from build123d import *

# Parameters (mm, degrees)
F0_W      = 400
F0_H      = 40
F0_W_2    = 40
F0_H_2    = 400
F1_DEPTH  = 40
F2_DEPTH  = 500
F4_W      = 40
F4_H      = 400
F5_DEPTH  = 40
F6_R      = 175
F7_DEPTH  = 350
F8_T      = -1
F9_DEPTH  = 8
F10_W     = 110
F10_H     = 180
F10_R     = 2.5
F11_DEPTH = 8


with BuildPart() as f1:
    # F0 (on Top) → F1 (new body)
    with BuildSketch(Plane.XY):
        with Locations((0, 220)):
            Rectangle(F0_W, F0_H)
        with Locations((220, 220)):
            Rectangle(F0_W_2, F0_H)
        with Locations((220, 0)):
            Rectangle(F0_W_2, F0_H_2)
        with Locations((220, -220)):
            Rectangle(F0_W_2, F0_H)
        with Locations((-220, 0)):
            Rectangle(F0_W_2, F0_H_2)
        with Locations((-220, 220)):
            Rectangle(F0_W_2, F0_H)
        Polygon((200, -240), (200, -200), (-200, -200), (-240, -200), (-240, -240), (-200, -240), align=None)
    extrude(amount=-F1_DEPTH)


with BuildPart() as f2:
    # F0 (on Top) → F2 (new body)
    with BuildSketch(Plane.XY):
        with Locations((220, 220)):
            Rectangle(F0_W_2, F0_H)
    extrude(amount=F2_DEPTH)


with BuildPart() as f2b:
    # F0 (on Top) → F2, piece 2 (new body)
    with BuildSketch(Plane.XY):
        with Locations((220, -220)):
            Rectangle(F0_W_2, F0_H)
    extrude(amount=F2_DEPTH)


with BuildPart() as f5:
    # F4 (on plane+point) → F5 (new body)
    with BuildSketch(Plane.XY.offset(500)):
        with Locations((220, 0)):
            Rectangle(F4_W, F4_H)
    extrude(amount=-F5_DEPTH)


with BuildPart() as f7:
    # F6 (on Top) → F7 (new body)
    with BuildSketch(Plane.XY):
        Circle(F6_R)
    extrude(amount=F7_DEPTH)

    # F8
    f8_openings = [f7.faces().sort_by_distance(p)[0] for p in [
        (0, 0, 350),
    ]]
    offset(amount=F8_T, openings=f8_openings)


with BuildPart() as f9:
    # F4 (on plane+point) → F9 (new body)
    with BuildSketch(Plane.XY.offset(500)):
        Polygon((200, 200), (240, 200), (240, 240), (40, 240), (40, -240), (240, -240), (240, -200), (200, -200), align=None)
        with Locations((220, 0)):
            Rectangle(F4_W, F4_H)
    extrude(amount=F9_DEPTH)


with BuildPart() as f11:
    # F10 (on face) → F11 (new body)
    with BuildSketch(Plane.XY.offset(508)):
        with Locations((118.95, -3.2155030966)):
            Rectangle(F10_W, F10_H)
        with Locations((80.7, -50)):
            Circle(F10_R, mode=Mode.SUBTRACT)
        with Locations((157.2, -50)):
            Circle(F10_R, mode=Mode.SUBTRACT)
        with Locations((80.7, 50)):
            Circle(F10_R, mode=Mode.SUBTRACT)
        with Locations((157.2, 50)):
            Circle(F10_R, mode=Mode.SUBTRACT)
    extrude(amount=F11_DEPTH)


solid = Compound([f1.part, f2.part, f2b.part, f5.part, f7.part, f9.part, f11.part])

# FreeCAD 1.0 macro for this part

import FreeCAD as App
import Part
import Sketcher
from FreeCAD import Vector
Q = App.Units.Quantity


def faces_at(feature, points):
    """Names of the faces that lie closest to the given points."""
    faces = feature.Shape.Faces
    near = lambda p: min(range(len(faces)), key=lambda i: faces[i].distToShape(Part.Vertex(*p))[0])
    return sorted({f"Face{near(p) + 1}" for p in points})

doc = App.newDocument("Part")
body = doc.addObject("PartDesign::Body", "Body")

# Sketch on XY plane
sketch1 = body.newObject("Sketcher::SketchObject", "Sketch")
sketch1.AttachmentSupport = (doc.getObject("XY_Plane"), [""])
sketch1.MapMode = "FlatFace"
sketch1.addGeometry(Part.LineSegment(Vector(240, -240, 0), Vector(240, 240, 0)), False)
sketch1.addGeometry(Part.LineSegment(Vector(240, 240, 0), Vector(-240, 240, 0)), False)
sketch1.addGeometry(Part.LineSegment(Vector(-240, 240, 0), Vector(-240, -240, 0)), False)
sketch1.addGeometry(Part.LineSegment(Vector(-240, -240, 0), Vector(240, -240, 0)), False)
sketch1.addGeometry(Part.LineSegment(Vector(-200, 200, 0), Vector(200, 200, 0)), False)
sketch1.addGeometry(Part.LineSegment(Vector(200, 200, 0), Vector(200, -200, 0)), False)
sketch1.addGeometry(Part.LineSegment(Vector(200, -200, 0), Vector(-200, -200, 0)), False)
sketch1.addGeometry(Part.LineSegment(Vector(-200, -200, 0), Vector(-200, 200, 0)), False)
sketch1.addConstraint(Sketcher.Constraint("Coincident", 0, 2, 1, 1))
sketch1.addConstraint(Sketcher.Constraint("Coincident", 1, 2, 2, 1))
sketch1.addConstraint(Sketcher.Constraint("Coincident", 2, 2, 3, 1))
sketch1.addConstraint(Sketcher.Constraint("Coincident", 3, 2, 0, 1))
sketch1.addConstraint(Sketcher.Constraint("Coincident", 4, 2, 5, 1))
sketch1.addConstraint(Sketcher.Constraint("Coincident", 5, 2, 6, 1))
sketch1.addConstraint(Sketcher.Constraint("Coincident", 6, 2, 7, 1))
sketch1.addConstraint(Sketcher.Constraint("Coincident", 7, 2, 4, 1))
sketch1.addConstraint(Sketcher.Constraint("Vertical", 0))
sketch1.addConstraint(Sketcher.Constraint("Horizontal", 1))
sketch1.addConstraint(Sketcher.Constraint("Vertical", 2))
sketch1.addConstraint(Sketcher.Constraint("Horizontal", 3))
sketch1.addConstraint(Sketcher.Constraint("Horizontal", 4))
sketch1.addConstraint(Sketcher.Constraint("Vertical", 5))
sketch1.addConstraint(Sketcher.Constraint("Horizontal", 6))
sketch1.addConstraint(Sketcher.Constraint("Vertical", 7))
sketch1.addConstraint(Sketcher.Constraint("Symmetric", 0, 2, 2, 2, -1, 1))
sketch1.addConstraint(Sketcher.Constraint("Symmetric", 4, 2, 6, 2, -1, 1))
sketch1.addConstraint(Sketcher.Constraint("Equal", 3, 0))
sketch1.addConstraint(Sketcher.Constraint("Equal", 6, 5))
sketch1.addConstraint(Sketcher.Constraint("DistanceX", 1, 2, 1, 1, Q("480 mm")))
sketch1.addConstraint(Sketcher.Constraint("DistanceX", 4, 1, 4, 2, Q("400 mm")))
pad1 = body.newObject("PartDesign::Pad", "Pad")
pad1.Profile = sketch1
pad1.Length = 40
pad1.Reversed = True
body2 = doc.addObject("PartDesign::Body", "Body001")

# Sketch on XY plane
sketch2 = body2.newObject("Sketcher::SketchObject", "Sketch001")
sketch2.AttachmentSupport = (doc.getObject("XY_Plane001"), [""])
sketch2.MapMode = "FlatFace"
sketch2.addGeometry(Part.LineSegment(Vector(200, 240, 0), Vector(200, 200, 0)), False)
sketch2.addGeometry(Part.LineSegment(Vector(200, 200, 0), Vector(240, 200, 0)), False)
sketch2.addGeometry(Part.LineSegment(Vector(240, 200, 0), Vector(240, 240, 0)), False)
sketch2.addGeometry(Part.LineSegment(Vector(240, 240, 0), Vector(200, 240, 0)), False)
sketch2.addConstraint(Sketcher.Constraint("Coincident", 0, 2, 1, 1))
sketch2.addConstraint(Sketcher.Constraint("Coincident", 1, 2, 2, 1))
sketch2.addConstraint(Sketcher.Constraint("Coincident", 2, 2, 3, 1))
sketch2.addConstraint(Sketcher.Constraint("Coincident", 3, 2, 0, 1))
sketch2.addConstraint(Sketcher.Constraint("Vertical", 0))
sketch2.addConstraint(Sketcher.Constraint("Horizontal", 1))
sketch2.addConstraint(Sketcher.Constraint("Vertical", 2))
sketch2.addConstraint(Sketcher.Constraint("Horizontal", 3))
sketch2.addConstraint(Sketcher.Constraint("Equal", 3, 0))
sketch2.addConstraint(Sketcher.Constraint("DistanceX", 1, 1, 1, 2, Q("40 mm")))
sketch2.addConstraint(Sketcher.Constraint("DistanceX", -1, 1, 0, 2, Q("200 mm")))
sketch2.addConstraint(Sketcher.Constraint("DistanceY", -1, 1, 0, 2, Q("200 mm")))
pad2 = body2.newObject("PartDesign::Pad", "Pad001")
pad2.Profile = sketch2
pad2.Length = 500
body3 = doc.addObject("PartDesign::Body", "Body002")

# Sketch on XY plane
sketch3 = body3.newObject("Sketcher::SketchObject", "Sketch002")
sketch3.AttachmentSupport = (doc.getObject("XY_Plane002"), [""])
sketch3.MapMode = "FlatFace"
sketch3.addGeometry(Part.LineSegment(Vector(200, -200, 0), Vector(200, -240, 0)), False)
sketch3.addGeometry(Part.LineSegment(Vector(200, -240, 0), Vector(240, -240, 0)), False)
sketch3.addGeometry(Part.LineSegment(Vector(240, -240, 0), Vector(240, -200, 0)), False)
sketch3.addGeometry(Part.LineSegment(Vector(240, -200, 0), Vector(200, -200, 0)), False)
sketch3.addConstraint(Sketcher.Constraint("Coincident", 0, 2, 1, 1))
sketch3.addConstraint(Sketcher.Constraint("Coincident", 1, 2, 2, 1))
sketch3.addConstraint(Sketcher.Constraint("Coincident", 2, 2, 3, 1))
sketch3.addConstraint(Sketcher.Constraint("Coincident", 3, 2, 0, 1))
sketch3.addConstraint(Sketcher.Constraint("Vertical", 0))
sketch3.addConstraint(Sketcher.Constraint("Horizontal", 1))
sketch3.addConstraint(Sketcher.Constraint("Vertical", 2))
sketch3.addConstraint(Sketcher.Constraint("Horizontal", 3))
sketch3.addConstraint(Sketcher.Constraint("Equal", 3, 0))
sketch3.addConstraint(Sketcher.Constraint("DistanceX", 1, 1, 1, 2, Q("40 mm")))
sketch3.addConstraint(Sketcher.Constraint("DistanceX", -1, 1, 0, 2, Q("200 mm")))
sketch3.addConstraint(Sketcher.Constraint("DistanceY", 0, 2, -1, 1, Q("240 mm")))
pad3 = body3.newObject("PartDesign::Pad", "Pad002")
pad3.Profile = sketch3
pad3.Length = 500
body4 = doc.addObject("PartDesign::Body", "Body003")

# Sketch on XY plane
sketch4 = body4.newObject("Sketcher::SketchObject", "Sketch003")
sketch4.AttachmentSupport = (doc.getObject("XY_Plane003"), [""])
sketch4.MapMode = "FlatFace"
sketch4.AttachmentOffset = App.Placement(Vector(0, 0, 500), App.Rotation())
sketch4.addGeometry(Part.LineSegment(Vector(200, 200, 0), Vector(200, -200, 0)), False)
sketch4.addGeometry(Part.LineSegment(Vector(200, -200, 0), Vector(240, -200, 0)), False)
sketch4.addGeometry(Part.LineSegment(Vector(240, -200, 0), Vector(240, 200, 0)), False)
sketch4.addGeometry(Part.LineSegment(Vector(240, 200, 0), Vector(200, 200, 0)), False)
sketch4.addConstraint(Sketcher.Constraint("Coincident", 0, 2, 1, 1))
sketch4.addConstraint(Sketcher.Constraint("Coincident", 1, 2, 2, 1))
sketch4.addConstraint(Sketcher.Constraint("Coincident", 2, 2, 3, 1))
sketch4.addConstraint(Sketcher.Constraint("Coincident", 3, 2, 0, 1))
sketch4.addConstraint(Sketcher.Constraint("Vertical", 0))
sketch4.addConstraint(Sketcher.Constraint("Horizontal", 1))
sketch4.addConstraint(Sketcher.Constraint("Vertical", 2))
sketch4.addConstraint(Sketcher.Constraint("Horizontal", 3))
sketch4.addConstraint(Sketcher.Constraint("DistanceX", 1, 1, 1, 2, Q("40 mm")))
sketch4.addConstraint(Sketcher.Constraint("DistanceY", 0, 2, 0, 1, Q("400 mm")))
sketch4.addConstraint(Sketcher.Constraint("DistanceX", -1, 1, 0, 2, Q("200 mm")))
sketch4.addConstraint(Sketcher.Constraint("DistanceY", 0, 2, -1, 1, Q("200 mm")))
pad4 = body4.newObject("PartDesign::Pad", "Pad003")
pad4.Profile = sketch4
pad4.Length = 40
pad4.Reversed = True
body5 = doc.addObject("PartDesign::Body", "Body004")

# Sketch on XY plane
sketch5 = body5.newObject("Sketcher::SketchObject", "Sketch004")
sketch5.AttachmentSupport = (doc.getObject("XY_Plane004"), [""])
sketch5.MapMode = "FlatFace"
sketch5.addGeometry(Part.Circle(Vector(0, 0, 0), Vector(0, 0, 1), 175), False)
sketch5.addConstraint(Sketcher.Constraint("Coincident", 0, 3, -1, 1))
sketch5.addConstraint(Sketcher.Constraint("Diameter", 0, Q("350 mm")))
pad5 = body5.newObject("PartDesign::Pad", "Pad004")
pad5.Profile = sketch5
pad5.Length = 350
doc.recompute()

thickness = body5.newObject("PartDesign::Thickness", "Thickness")
thickness.Base = (pad5, faces_at(pad5, [(0, 0, 350)]))
thickness.Value = 1
thickness.Reversed = True
thickness.Join = "Arc"
body6 = doc.addObject("PartDesign::Body", "Body005")

# Sketch on XY plane
sketch6 = body6.newObject("Sketcher::SketchObject", "Sketch005")
sketch6.AttachmentSupport = (doc.getObject("XY_Plane005"), [""])
sketch6.MapMode = "FlatFace"
sketch6.AttachmentOffset = App.Placement(Vector(0, 0, 500), App.Rotation())
sketch6.addGeometry(Part.LineSegment(Vector(240, 240, 0), Vector(40, 240, 0)), False)
sketch6.addGeometry(Part.LineSegment(Vector(40, 240, 0), Vector(40, -240, 0)), False)
sketch6.addGeometry(Part.LineSegment(Vector(40, -240, 0), Vector(240, -240, 0)), False)
sketch6.addGeometry(Part.LineSegment(Vector(240, -240, 0), Vector(240, 240, 0)), False)
sketch6.addConstraint(Sketcher.Constraint("Coincident", 0, 2, 1, 1))
sketch6.addConstraint(Sketcher.Constraint("Coincident", 1, 2, 2, 1))
sketch6.addConstraint(Sketcher.Constraint("Coincident", 2, 2, 3, 1))
sketch6.addConstraint(Sketcher.Constraint("Coincident", 3, 2, 0, 1))
sketch6.addConstraint(Sketcher.Constraint("Horizontal", 0))
sketch6.addConstraint(Sketcher.Constraint("Vertical", 1))
sketch6.addConstraint(Sketcher.Constraint("Horizontal", 2))
sketch6.addConstraint(Sketcher.Constraint("Vertical", 3))
sketch6.addConstraint(Sketcher.Constraint("DistanceX", 0, 2, 0, 1, Q("200 mm")))
sketch6.addConstraint(Sketcher.Constraint("DistanceY", 1, 2, 1, 1, Q("480 mm")))
sketch6.addConstraint(Sketcher.Constraint("DistanceX", -1, 1, 0, 2, Q("40 mm")))
sketch6.addConstraint(Sketcher.Constraint("DistanceY", -1, 1, 0, 2, Q("240 mm")))
pad6 = body6.newObject("PartDesign::Pad", "Pad005")
pad6.Profile = sketch6
pad6.Length = 8
body7 = doc.addObject("PartDesign::Body", "Body006")

# Sketch on XY plane
sketch7 = body7.newObject("Sketcher::SketchObject", "Sketch006")
sketch7.AttachmentSupport = (doc.getObject("XY_Plane006"), [""])
sketch7.MapMode = "FlatFace"
sketch7.AttachmentOffset = App.Placement(Vector(0, 0, 508), App.Rotation())
sketch7.addGeometry(Part.LineSegment(Vector(64, 86.8, 0), Vector(64, -93.2, 0)), False)
sketch7.addGeometry(Part.LineSegment(Vector(64, -93.2, 0), Vector(173.9, -93.2, 0)), False)
sketch7.addGeometry(Part.LineSegment(Vector(173.9, -93.2, 0), Vector(173.9, 86.8, 0)), False)
sketch7.addGeometry(Part.LineSegment(Vector(173.9, 86.8, 0), Vector(64, 86.8, 0)), False)
sketch7.addGeometry(Part.Circle(Vector(80.7, -50, 0), Vector(0, 0, 1), 2.5), False)
sketch7.addGeometry(Part.Circle(Vector(157.2, -50, 0), Vector(0, 0, 1), 2.5), False)
sketch7.addGeometry(Part.Circle(Vector(80.7, 50, 0), Vector(0, 0, 1), 2.5), False)
sketch7.addGeometry(Part.Circle(Vector(157.2, 50, 0), Vector(0, 0, 1), 2.5), False)
sketch7.addConstraint(Sketcher.Constraint("Coincident", 0, 2, 1, 1))
sketch7.addConstraint(Sketcher.Constraint("Coincident", 1, 2, 2, 1))
sketch7.addConstraint(Sketcher.Constraint("Coincident", 2, 2, 3, 1))
sketch7.addConstraint(Sketcher.Constraint("Coincident", 3, 2, 0, 1))
sketch7.addConstraint(Sketcher.Constraint("Vertical", 0))
sketch7.addConstraint(Sketcher.Constraint("Horizontal", 1))
sketch7.addConstraint(Sketcher.Constraint("Vertical", 2))
sketch7.addConstraint(Sketcher.Constraint("Horizontal", 3))
sketch7.addConstraint(Sketcher.Constraint("Equal", 4, 5))
sketch7.addConstraint(Sketcher.Constraint("Equal", 5, 6))
sketch7.addConstraint(Sketcher.Constraint("Equal", 6, 7))
sketch7.addConstraint(Sketcher.Constraint("Symmetric", 4, 3, 6, 3, -1))
sketch7.addConstraint(Sketcher.Constraint("Symmetric", 5, 3, 7, 3, -1))
sketch7.addConstraint(Sketcher.Constraint("Horizontal", 4, 3, 5, 3))
sketch7.addConstraint(Sketcher.Constraint("Diameter", 4, Q("5 mm")))
sketch7.addConstraint(Sketcher.Constraint("DistanceX", 1, 1, 1, 2, Q("110 mm")))
sketch7.addConstraint(Sketcher.Constraint("DistanceY", 0, 2, 0, 1, Q("180 mm")))
sketch7.addConstraint(Sketcher.Constraint("DistanceY", 4, 3, -1, 1, Q("50 mm")))
sketch7.addConstraint(Sketcher.Constraint("DistanceX", -1, 1, 4, 3, Q("80.7 mm")))
sketch7.addConstraint(Sketcher.Constraint("DistanceX", -1, 1, 5, 3, Q("157.2 mm")))
sketch7.addConstraint(Sketcher.Constraint("DistanceX", -1, 1, 0, 2, Q("63.95 mm")))
sketch7.addConstraint(Sketcher.Constraint("DistanceY", 0, 2, -1, 1, Q("93.215503 mm")))
pad7 = body7.newObject("PartDesign::Pad", "Pad006")
pad7.Profile = sketch7
pad7.Length = 8

doc.recompute()
